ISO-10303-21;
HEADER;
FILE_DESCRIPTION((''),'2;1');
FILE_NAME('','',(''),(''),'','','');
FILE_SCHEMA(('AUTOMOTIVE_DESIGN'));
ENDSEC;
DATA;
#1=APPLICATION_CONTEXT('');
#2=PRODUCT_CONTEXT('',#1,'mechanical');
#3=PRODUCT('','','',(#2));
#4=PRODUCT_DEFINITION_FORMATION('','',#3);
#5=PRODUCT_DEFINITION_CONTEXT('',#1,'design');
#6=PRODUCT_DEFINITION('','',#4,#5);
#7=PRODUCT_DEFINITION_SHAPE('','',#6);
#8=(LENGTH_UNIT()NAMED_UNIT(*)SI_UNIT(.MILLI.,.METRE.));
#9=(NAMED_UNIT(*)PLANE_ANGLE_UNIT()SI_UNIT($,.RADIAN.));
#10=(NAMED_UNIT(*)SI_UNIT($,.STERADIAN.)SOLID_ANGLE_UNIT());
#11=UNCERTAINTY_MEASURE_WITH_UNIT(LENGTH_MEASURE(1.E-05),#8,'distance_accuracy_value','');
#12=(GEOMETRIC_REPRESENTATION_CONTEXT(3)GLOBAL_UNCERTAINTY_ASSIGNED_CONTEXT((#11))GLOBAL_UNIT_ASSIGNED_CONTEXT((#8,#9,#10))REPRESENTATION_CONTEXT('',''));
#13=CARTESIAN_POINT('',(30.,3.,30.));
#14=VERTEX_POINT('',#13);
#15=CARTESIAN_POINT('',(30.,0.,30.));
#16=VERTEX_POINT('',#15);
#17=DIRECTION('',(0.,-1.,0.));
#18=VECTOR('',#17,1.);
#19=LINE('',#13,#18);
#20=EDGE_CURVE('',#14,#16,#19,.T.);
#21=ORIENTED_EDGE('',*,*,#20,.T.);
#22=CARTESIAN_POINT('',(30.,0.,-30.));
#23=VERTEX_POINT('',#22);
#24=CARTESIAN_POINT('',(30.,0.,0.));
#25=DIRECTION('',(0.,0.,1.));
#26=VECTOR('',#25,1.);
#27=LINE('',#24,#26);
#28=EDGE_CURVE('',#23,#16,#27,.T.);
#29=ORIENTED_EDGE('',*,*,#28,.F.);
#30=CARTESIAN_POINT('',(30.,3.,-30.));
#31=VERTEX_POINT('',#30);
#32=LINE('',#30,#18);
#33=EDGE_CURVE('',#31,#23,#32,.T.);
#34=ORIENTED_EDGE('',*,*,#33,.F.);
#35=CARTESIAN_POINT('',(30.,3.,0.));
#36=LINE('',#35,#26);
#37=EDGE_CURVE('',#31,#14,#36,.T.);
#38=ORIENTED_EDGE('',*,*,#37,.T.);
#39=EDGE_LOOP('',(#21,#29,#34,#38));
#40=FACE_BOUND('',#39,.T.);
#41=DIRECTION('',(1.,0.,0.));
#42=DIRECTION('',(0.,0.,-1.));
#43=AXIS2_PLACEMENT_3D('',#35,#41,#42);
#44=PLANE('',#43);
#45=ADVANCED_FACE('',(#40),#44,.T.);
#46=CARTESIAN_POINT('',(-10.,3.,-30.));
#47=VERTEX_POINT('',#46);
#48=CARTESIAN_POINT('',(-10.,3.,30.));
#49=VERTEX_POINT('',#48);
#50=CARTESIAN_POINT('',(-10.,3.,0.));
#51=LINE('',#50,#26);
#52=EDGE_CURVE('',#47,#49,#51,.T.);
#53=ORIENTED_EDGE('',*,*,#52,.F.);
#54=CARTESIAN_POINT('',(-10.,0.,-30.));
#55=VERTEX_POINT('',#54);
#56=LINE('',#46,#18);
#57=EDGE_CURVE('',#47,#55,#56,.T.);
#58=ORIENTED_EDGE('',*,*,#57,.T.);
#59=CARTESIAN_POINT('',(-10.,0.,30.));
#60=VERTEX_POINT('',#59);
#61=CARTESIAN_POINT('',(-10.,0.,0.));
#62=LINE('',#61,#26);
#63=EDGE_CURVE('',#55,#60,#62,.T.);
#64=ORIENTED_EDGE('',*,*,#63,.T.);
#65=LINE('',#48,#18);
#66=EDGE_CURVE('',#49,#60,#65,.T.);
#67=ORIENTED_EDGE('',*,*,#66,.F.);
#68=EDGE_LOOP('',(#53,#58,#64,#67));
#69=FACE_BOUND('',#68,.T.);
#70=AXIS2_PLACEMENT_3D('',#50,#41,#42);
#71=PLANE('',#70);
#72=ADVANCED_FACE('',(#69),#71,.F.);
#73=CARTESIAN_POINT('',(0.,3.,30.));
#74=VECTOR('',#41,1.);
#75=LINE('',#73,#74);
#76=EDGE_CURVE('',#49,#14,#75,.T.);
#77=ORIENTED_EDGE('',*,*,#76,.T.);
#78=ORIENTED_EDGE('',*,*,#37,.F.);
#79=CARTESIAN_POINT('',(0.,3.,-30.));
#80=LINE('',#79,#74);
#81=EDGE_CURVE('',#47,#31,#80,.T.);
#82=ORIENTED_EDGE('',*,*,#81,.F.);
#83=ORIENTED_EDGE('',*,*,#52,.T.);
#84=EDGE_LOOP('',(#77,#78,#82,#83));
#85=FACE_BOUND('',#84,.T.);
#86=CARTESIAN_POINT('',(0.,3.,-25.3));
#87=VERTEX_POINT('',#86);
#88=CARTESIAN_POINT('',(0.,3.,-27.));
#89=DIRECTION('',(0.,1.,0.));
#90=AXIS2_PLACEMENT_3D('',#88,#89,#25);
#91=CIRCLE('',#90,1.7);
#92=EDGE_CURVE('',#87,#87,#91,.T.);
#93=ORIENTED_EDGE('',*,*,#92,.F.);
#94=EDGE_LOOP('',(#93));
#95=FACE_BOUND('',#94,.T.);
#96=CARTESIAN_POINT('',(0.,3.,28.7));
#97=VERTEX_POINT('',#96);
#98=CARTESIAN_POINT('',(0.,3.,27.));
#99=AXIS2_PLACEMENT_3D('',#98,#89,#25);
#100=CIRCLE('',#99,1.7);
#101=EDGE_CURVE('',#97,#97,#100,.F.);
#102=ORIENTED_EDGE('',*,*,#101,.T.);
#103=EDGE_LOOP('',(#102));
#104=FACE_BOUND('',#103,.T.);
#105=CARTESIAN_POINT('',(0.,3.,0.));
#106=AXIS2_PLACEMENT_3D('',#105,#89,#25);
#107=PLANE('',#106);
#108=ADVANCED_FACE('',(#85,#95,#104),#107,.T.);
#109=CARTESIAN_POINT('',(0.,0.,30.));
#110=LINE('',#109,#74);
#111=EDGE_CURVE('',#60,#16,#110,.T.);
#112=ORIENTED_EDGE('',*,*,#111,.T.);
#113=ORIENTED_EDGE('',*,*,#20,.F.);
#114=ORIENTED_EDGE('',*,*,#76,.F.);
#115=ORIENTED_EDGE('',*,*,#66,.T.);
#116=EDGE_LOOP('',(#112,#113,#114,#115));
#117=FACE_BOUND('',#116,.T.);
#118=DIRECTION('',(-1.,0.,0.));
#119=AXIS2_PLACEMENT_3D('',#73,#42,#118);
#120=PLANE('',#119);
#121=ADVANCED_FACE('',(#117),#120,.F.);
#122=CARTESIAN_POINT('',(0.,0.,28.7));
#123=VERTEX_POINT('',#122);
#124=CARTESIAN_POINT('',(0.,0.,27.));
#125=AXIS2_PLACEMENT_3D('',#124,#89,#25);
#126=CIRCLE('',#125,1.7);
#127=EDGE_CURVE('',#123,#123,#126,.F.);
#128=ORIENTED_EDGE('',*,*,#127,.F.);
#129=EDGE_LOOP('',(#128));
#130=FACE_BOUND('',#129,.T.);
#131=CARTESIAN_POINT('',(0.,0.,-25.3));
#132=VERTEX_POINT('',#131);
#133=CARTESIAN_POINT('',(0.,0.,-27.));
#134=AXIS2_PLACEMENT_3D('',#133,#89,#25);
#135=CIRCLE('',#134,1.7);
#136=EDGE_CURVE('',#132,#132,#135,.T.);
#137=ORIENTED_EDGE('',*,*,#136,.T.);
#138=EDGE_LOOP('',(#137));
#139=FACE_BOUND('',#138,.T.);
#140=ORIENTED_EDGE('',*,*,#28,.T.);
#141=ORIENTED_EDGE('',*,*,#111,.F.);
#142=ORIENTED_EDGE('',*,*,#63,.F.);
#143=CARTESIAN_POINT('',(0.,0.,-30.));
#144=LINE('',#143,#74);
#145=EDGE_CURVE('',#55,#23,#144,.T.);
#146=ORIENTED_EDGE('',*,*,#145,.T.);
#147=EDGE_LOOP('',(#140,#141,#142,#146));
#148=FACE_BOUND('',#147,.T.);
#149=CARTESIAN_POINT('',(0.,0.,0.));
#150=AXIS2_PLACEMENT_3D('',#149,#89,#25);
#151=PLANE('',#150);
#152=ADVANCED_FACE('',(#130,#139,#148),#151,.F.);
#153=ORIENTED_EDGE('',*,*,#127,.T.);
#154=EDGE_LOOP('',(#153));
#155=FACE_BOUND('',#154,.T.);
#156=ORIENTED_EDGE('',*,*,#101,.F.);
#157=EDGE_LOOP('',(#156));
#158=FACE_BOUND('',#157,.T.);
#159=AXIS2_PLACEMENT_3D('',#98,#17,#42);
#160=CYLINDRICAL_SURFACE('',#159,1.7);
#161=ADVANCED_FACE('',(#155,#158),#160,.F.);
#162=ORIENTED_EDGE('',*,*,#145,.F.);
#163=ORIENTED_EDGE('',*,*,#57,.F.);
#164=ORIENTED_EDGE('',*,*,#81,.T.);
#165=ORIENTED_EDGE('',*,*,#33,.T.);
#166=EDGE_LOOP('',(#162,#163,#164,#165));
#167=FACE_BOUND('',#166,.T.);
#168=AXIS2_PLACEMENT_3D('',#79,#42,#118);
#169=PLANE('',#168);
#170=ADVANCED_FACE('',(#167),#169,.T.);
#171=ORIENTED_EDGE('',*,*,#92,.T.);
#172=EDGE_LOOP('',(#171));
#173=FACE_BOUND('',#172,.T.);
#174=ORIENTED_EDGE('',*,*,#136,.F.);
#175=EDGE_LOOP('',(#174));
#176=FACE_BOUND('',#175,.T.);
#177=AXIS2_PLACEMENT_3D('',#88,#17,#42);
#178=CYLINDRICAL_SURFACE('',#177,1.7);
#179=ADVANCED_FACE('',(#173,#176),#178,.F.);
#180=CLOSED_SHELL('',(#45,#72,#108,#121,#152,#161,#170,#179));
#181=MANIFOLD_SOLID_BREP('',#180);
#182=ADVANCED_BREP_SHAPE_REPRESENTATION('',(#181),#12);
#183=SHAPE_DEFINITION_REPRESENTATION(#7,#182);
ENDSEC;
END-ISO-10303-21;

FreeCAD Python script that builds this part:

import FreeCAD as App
import Part
import Sketcher

doc = App.newDocument("Part")
body = doc.addObject("PartDesign::Body", "Body")

sketch1 = body.newObject("Sketcher::SketchObject", "Sketch")
sketch1.AttachmentSupport = (doc.getObject("XZ_Plane"), [""])
sketch1.MapMode = "FlatFace"
sketch1.addGeometry([
    Part.LineSegment(App.Vector(-10, -30, 0), App.Vector(-10, 30, 0)),
    Part.LineSegment(App.Vector(-10, 30, 0), App.Vector(30, 30, 0)),
    Part.LineSegment(App.Vector(30, 30, 0), App.Vector(30, -30, 0)),
    Part.LineSegment(App.Vector(30, -30, 0), App.Vector(-10, -30, 0)),
    Part.Circle(App.Vector(0, 27, 0), App.Vector(0, 0, 1), 1.7),
    Part.Circle(App.Vector(0, -27, 0), App.Vector(0, 0, 1), 1.7),
], False)
sketch1.addConstraint([
    Sketcher.Constraint("Coincident", 0, 2, 1, 1),
    Sketcher.Constraint("Coincident", 1, 2, 2, 1),
    Sketcher.Constraint("Coincident", 2, 2, 3, 1),
    Sketcher.Constraint("Coincident", 3, 2, 0, 1),
    Sketcher.Constraint("Vertical", 0),
    Sketcher.Constraint("Horizontal", 1),
    Sketcher.Constraint("Vertical", 2),
    Sketcher.Constraint("Horizontal", 3),
    Sketcher.Constraint("Equal", 4, 5),
    Sketcher.Constraint("Symmetric", 4, 3, 5, 3, -1, 1),
    Sketcher.Constraint("PointOnObject", 4, 3, -2),
    Sketcher.Constraint("Diameter", 4, 3.4),
    Sketcher.Constraint("DistanceX", 1, 1, 1, 2, 40.0),
    Sketcher.Constraint("DistanceY", 0, 1, 0, 2, 60.0),
    Sketcher.Constraint("DistanceY", -1, 1, 4, 3, 27.0),
    Sketcher.Constraint("DistanceX", 0, 2, -1, 1, 10.0),
    Sketcher.Constraint("DistanceY", -1, 1, 0, 2, 30.0),
])
pad1 = body.newObject("PartDesign::Pad", "Pad")
pad1.Profile = sketch1
pad1.Length = 3
pad1.Reversed = True

doc.recompute()
